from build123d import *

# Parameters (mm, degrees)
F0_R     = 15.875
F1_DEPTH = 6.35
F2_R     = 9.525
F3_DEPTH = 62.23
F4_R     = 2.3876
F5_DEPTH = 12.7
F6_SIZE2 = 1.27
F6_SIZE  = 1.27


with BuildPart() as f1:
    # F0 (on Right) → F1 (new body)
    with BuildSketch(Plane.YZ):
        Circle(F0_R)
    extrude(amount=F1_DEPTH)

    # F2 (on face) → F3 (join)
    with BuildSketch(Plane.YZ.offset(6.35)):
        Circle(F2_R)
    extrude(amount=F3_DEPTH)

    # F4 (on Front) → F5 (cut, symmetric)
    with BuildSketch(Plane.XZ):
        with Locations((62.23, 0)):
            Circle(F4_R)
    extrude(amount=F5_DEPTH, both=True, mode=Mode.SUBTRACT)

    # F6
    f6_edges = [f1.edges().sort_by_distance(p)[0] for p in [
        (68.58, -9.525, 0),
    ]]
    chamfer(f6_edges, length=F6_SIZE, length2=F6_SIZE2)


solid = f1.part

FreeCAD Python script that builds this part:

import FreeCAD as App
import Part
import Sketcher
from FreeCAD import Vector
Q = App.Units.Quantity


def edges_at(feature, points):
    """Names of the edges that pass closest to the given points."""
    edges = feature.Shape.Edges
    near = lambda p: min(range(len(edges)), key=lambda i: edges[i].distToShape(Part.Vertex(*p))[0])
    return sorted({f"Edge{near(p) + 1}" for p in points})

doc = App.newDocument("Part")
params = doc.addObject("Spreadsheet::Sheet", "Params")
for row, (alias, value) in enumerate([
    ("sketch1_diameter", "1.25 in"),
    ("pad1_length", "0.25 in"),
    ("sketch2_diameter", "0.75 in"),
    ("pad2_length", "2.45 in"),
    ("sketch3_diameter", "0.188 in"),
    ("pocket1_length", "1 in"),
    ("chamfer_size", "0.05 in"),
    ("chamfer_size2", "0.05 in"),
], start=1):
    params.set(f"A{row}", alias)
    params.set(f"B{row}", "=" + value)
    params.setAlias(f"B{row}", alias)

body = doc.addObject("PartDesign::Body", "Body")

# Sketch on YZ plane
sketch1 = doc.addObject("Sketcher::SketchObject", "Sketch")
body.addObject(sketch1)
sketch1.AttachmentSupport = (doc.YZ_Plane, [""])
sketch1.MapMode = "FlatFace"
sketch1.addGeometry(Part.Circle(Vector(0, 0, 0), Vector(0, 0, 1), 16), False)
sketch1.addConstraint([
    Sketcher.Constraint("Coincident", 0, 3, -1, 1),
    Sketcher.Constraint("Diameter", 0, Q("1.25 in")),
])
sketch1.setExpression("Constraints[1]", "Params.sketch1_diameter")
pad1 = doc.addObject("PartDesign::Pad", "Pad")
body.addObject(pad1)
pad1.Profile = sketch1
pad1.setExpression("Length", "Params.pad1_length")

# Sketch on YZ plane
sketch2 = doc.addObject("Sketcher::SketchObject", "Sketch001")
body.addObject(sketch2)
sketch2.AttachmentSupport = (doc.YZ_Plane, [""])
sketch2.MapMode = "FlatFace"
sketch2.AttachmentOffset = App.Placement(Vector(0, 0, 0.25 * 25.4), App.Rotation())
sketch2.addGeometry(Part.Circle(Vector(0, 0, 0), Vector(0, 0, 1), 10), False)
sketch2.addConstraint([
    Sketcher.Constraint("Coincident", 0, 3, -1, 1),
    Sketcher.Constraint("Diameter", 0, Q("0.75 in")),
])
sketch2.setExpression("Constraints[1]", "Params.sketch2_diameter")
pad2 = doc.addObject("PartDesign::Pad", "Pad001")
body.addObject(pad2)
pad2.Profile = sketch2
pad2.setExpression("Length", "Params.pad2_length")

# Sketch on XZ plane
sketch3 = doc.addObject("Sketcher::SketchObject", "Sketch002")
body.addObject(sketch3)
sketch3.AttachmentSupport = (doc.XZ_Plane, [""])
sketch3.MapMode = "FlatFace"
sketch3.addGeometry(Part.Circle(Vector(62.2, 0, 0), Vector(0, 0, 1), 2.4), False)
sketch3.addConstraint([
    Sketcher.Constraint("PointOnObject", 0, 3, -1),
    Sketcher.Constraint("Diameter", 0, Q("0.188 in")),
    Sketcher.Constraint("DistanceX", -1, 1, 0, 3, Q("2.45 in")),
])
sketch3.setExpression("Constraints[1]", "Params.sketch3_diameter")
pocket1 = doc.addObject("PartDesign::Pocket", "Pocket")
body.addObject(pocket1)
pocket1.Profile = sketch3
pocket1.setExpression("Length", "Params.pocket1_length")
pocket1.Midplane = True
doc.recompute()

chamfer = doc.addObject("PartDesign::Chamfer", "Chamfer")
body.addObject(chamfer)
chamfer.Base = (pocket1, edges_at(pocket1, [(68.58, -9.525, 0)]))
chamfer.ChamferType = "Two distances"
chamfer.setExpression("Size", "Params.chamfer_size")
chamfer.setExpression("Size2", "Params.chamfer_size2")

doc.recompute()
